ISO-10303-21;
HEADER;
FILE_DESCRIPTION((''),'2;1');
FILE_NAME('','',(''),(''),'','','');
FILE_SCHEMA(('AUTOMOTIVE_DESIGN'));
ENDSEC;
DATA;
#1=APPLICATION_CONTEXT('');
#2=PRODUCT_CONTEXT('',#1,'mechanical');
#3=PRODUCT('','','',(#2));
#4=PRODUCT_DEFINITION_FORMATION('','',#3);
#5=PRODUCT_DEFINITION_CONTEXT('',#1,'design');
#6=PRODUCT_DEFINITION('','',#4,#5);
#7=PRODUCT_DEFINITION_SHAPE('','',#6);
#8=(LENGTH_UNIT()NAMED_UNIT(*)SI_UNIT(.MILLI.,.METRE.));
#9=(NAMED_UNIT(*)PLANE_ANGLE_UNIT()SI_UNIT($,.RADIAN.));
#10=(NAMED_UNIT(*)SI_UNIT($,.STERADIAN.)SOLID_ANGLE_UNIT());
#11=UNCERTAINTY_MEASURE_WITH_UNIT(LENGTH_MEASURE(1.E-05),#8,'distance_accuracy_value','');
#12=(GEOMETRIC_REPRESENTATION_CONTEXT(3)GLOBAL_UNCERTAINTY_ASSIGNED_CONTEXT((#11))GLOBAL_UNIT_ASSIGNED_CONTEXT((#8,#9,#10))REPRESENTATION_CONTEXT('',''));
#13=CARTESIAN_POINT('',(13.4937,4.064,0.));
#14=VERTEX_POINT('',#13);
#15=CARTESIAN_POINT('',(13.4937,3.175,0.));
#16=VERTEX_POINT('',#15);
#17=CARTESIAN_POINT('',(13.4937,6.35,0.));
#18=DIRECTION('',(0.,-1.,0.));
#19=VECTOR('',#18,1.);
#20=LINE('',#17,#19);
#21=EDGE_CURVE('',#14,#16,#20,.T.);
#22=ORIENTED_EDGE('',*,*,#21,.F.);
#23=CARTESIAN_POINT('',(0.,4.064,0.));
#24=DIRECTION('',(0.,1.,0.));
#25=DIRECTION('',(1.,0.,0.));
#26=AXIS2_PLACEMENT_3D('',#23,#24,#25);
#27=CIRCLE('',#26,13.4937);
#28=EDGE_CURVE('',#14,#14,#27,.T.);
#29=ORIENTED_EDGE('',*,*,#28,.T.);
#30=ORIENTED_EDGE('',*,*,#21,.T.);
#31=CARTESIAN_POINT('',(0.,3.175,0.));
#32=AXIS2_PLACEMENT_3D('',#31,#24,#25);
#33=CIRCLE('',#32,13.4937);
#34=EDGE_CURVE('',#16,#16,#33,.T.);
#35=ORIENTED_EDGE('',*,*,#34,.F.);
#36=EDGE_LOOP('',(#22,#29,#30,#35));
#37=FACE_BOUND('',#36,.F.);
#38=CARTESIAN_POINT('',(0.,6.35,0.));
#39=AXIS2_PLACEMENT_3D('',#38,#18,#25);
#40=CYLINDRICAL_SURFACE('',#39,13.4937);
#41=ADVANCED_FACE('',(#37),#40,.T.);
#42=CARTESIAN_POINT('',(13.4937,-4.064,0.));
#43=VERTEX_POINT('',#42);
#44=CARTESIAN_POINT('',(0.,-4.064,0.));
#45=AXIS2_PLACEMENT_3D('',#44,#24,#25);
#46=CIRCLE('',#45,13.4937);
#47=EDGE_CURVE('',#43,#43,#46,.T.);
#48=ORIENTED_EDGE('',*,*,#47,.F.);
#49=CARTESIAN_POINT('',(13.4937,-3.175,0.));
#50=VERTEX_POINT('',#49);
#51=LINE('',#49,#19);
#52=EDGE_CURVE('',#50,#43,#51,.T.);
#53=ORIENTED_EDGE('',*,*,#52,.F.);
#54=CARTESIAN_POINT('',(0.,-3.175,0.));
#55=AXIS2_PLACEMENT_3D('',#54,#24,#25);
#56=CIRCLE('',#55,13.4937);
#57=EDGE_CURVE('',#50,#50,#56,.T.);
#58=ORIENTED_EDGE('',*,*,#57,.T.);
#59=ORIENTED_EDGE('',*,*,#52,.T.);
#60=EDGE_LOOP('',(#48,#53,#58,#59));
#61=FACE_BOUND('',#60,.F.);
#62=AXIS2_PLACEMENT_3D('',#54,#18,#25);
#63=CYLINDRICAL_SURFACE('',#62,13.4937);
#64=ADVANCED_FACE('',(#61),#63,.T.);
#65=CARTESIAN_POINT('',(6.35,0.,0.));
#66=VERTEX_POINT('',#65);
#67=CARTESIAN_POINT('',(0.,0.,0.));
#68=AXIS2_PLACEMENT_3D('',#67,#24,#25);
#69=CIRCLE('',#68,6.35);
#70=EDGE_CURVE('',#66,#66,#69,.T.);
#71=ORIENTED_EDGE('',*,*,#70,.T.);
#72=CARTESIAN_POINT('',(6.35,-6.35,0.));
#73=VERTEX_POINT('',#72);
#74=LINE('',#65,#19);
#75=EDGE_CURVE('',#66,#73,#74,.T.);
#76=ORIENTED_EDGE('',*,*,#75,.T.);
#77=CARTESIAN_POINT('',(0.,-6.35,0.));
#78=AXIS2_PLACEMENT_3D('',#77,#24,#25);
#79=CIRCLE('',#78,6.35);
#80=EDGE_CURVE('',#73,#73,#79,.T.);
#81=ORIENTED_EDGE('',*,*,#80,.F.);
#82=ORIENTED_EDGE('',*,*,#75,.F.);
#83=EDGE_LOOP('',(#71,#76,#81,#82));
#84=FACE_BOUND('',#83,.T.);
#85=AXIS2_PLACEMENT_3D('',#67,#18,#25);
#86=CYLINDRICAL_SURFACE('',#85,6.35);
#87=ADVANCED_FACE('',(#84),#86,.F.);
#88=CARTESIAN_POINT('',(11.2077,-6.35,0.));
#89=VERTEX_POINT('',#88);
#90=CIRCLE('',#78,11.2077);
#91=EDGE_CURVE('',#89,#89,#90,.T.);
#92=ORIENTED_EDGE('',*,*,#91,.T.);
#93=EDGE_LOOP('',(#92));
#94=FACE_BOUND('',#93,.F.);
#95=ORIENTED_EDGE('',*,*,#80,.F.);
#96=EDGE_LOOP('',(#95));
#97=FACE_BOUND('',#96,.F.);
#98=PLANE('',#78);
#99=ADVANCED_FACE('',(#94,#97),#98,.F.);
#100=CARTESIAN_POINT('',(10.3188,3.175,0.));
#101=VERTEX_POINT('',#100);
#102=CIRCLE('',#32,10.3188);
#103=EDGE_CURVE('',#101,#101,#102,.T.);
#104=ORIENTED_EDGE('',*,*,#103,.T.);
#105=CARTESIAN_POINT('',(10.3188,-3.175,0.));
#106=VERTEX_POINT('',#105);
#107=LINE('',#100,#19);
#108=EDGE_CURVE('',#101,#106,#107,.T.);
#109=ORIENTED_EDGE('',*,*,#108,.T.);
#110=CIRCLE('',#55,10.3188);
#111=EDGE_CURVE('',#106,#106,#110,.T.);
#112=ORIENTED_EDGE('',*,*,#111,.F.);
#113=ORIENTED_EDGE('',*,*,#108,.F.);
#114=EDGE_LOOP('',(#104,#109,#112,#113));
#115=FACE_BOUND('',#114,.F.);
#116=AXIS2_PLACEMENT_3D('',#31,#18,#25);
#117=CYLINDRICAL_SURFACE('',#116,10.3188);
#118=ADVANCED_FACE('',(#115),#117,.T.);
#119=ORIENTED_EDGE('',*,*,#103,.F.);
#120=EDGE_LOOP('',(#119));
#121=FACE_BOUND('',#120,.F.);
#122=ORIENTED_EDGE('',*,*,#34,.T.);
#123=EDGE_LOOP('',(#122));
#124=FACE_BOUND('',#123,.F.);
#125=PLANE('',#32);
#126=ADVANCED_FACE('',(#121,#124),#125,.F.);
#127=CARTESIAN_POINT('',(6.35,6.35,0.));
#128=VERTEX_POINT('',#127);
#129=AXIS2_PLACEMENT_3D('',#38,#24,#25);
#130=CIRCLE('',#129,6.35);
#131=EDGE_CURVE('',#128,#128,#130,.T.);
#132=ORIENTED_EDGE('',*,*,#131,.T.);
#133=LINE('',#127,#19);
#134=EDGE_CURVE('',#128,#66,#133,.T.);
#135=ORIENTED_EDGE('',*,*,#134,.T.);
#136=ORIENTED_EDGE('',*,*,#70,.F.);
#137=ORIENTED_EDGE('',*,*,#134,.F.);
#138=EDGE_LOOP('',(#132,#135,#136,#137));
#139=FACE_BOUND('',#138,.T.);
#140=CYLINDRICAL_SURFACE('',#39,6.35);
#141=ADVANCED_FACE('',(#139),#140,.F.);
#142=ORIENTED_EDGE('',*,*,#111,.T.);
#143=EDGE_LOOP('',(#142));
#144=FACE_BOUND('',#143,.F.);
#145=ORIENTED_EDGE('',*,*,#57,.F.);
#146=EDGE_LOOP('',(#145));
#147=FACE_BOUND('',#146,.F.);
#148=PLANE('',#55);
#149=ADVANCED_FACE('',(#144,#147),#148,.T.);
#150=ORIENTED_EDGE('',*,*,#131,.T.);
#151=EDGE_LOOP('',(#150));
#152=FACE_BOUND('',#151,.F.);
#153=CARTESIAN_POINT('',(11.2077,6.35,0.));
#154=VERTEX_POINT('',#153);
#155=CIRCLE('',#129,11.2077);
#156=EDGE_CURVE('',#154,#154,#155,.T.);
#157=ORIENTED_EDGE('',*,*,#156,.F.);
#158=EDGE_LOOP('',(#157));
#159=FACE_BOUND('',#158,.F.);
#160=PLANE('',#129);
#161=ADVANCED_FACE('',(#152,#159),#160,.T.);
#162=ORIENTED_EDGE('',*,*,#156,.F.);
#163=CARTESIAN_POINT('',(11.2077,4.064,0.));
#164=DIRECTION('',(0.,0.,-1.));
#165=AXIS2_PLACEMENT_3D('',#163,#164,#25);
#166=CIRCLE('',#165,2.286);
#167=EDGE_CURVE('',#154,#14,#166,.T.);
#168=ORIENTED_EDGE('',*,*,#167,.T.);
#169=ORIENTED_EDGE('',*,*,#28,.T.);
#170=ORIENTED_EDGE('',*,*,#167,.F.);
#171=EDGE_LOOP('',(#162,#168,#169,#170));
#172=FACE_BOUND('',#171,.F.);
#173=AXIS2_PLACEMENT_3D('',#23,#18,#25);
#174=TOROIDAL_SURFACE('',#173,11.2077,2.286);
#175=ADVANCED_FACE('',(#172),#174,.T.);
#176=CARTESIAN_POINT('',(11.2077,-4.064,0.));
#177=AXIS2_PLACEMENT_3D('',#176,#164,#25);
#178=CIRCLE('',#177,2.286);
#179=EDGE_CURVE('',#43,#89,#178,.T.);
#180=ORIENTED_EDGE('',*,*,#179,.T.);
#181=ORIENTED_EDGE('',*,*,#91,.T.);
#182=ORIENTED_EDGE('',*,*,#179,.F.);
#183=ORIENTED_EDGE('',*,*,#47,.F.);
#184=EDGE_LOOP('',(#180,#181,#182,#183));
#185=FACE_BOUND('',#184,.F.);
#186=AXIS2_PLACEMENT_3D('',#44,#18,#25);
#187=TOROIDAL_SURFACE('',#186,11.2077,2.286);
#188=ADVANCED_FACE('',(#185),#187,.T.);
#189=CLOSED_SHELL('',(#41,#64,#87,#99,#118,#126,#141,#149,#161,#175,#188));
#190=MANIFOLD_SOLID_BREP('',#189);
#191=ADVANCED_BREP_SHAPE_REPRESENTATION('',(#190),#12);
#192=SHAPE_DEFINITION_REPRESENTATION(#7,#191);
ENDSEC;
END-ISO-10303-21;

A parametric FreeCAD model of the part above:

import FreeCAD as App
import Part
import Sketcher
Q = App.Units.Quantity


def edges_at(feature, points):
    """Names of the edges that pass closest to the given points."""
    edges = feature.Shape.Edges
    near = lambda p: min(range(len(edges)), key=lambda i: edges[i].distToShape(Part.Vertex(*p))[0])
    return sorted({f"Edge{near(p) + 1}" for p in points})


def add_polygon(sketch, points):
    """Adds a closed chain of lines whose ends are joined by coincident constraints."""
    first, n = sketch.GeometryCount, len(points)
    for a, b in zip(points, points[1:] + points[:1]):
        sketch.addGeometry(Part.LineSegment(App.Vector(*a, 0), App.Vector(*b, 0)), False)
    for i in range(n):
        sketch.addConstraint(Sketcher.Constraint("Coincident", first + i, 2, first + (i + 1) % n, 1))

doc = App.newDocument("Part")
params = doc.addObject("Spreadsheet::Sheet", "Params")
for row, (alias, value) in enumerate([
    ("sketch1_height", "0.5 in"),
    ("sketch1_height2", "0.25 in"),
    ("sketch1_width", "0.281248 in"),
    ("revolution_angle", "360 deg"),
    ("fillet_radius", "0.09 in"),
], start=1):
    params.set(f"A{row}", alias)
    params.set(f"B{row}", "=" + value)
    params.setAlias(f"B{row}", alias)

body = doc.addObject("PartDesign::Body", "Body")

# Sketch on XY plane
sketch1 = body.newObject("Sketcher::SketchObject", "Sketch")
sketch1.AttachmentSupport = (doc.getObject("XY_Plane"), [""])
sketch1.MapMode = "FlatFace"
add_polygon(sketch1, [(13.5, 6.3), (6.3, 6.3), (6.3, -6.3), (13.5, -6.3), (13.5, -3.2), (10.3, -3.2), (10.3, 3.2), (13.5, 3.2)])  # lines 0-7
sketch1.addConstraint(Sketcher.Constraint("Horizontal", 0))
sketch1.addConstraint(Sketcher.Constraint("Vertical", 1))
sketch1.addConstraint(Sketcher.Constraint("Horizontal", 2))
sketch1.addConstraint(Sketcher.Constraint("Vertical", 3))
sketch1.addConstraint(Sketcher.Constraint("Horizontal", 4))
sketch1.addConstraint(Sketcher.Constraint("Vertical", 5))
sketch1.addConstraint(Sketcher.Constraint("Horizontal", 6))
sketch1.addConstraint(Sketcher.Constraint("Vertical", 7))
sketch1.addConstraint(Sketcher.Constraint("Symmetric", 3, 2, 6, 2, -1))
sketch1.addConstraint(Sketcher.Constraint("Equal", 6, 3))
sketch1.addConstraint(Sketcher.Constraint("Equal", 3, 7))
sketch1.addConstraint(Sketcher.Constraint("DistanceY", 1, 2, 1, 1, Q("0.5 in")))
sketch1.addConstraint(Sketcher.Constraint("DistanceY", 5, 1, 5, 2, Q("0.25 in")))
sketch1.addConstraint(Sketcher.Constraint("DistanceX", -1, 1, 0, 2, Q("0.25 in")))
sketch1.addConstraint(Sketcher.Constraint("DistanceX", 0, 2, 0, 1, Q("0.281248 in")))
sketch1.setExpression("Constraints[19]", "Params.sketch1_height")
sketch1.setExpression("Constraints[20]", "Params.sketch1_height2")
sketch1.setExpression("Constraints[22]", "Params.sketch1_width")
revolution = body.newObject("PartDesign::Revolution", "Revolution")
revolution.Profile = sketch1
revolution.ReferenceAxis = (sketch1, ["V_Axis"])
revolution.setExpression("Angle", "Params.revolution_angle")
doc.recompute()

fillet = body.newObject("PartDesign::Fillet", "Fillet")
fillet.Base = (revolution, edges_at(revolution, [(-13.494, 6.35, 0), (-13.494, -6.35, 0)]))
fillet.setExpression("Radius", "Params.fillet_radius")

doc.recompute()
